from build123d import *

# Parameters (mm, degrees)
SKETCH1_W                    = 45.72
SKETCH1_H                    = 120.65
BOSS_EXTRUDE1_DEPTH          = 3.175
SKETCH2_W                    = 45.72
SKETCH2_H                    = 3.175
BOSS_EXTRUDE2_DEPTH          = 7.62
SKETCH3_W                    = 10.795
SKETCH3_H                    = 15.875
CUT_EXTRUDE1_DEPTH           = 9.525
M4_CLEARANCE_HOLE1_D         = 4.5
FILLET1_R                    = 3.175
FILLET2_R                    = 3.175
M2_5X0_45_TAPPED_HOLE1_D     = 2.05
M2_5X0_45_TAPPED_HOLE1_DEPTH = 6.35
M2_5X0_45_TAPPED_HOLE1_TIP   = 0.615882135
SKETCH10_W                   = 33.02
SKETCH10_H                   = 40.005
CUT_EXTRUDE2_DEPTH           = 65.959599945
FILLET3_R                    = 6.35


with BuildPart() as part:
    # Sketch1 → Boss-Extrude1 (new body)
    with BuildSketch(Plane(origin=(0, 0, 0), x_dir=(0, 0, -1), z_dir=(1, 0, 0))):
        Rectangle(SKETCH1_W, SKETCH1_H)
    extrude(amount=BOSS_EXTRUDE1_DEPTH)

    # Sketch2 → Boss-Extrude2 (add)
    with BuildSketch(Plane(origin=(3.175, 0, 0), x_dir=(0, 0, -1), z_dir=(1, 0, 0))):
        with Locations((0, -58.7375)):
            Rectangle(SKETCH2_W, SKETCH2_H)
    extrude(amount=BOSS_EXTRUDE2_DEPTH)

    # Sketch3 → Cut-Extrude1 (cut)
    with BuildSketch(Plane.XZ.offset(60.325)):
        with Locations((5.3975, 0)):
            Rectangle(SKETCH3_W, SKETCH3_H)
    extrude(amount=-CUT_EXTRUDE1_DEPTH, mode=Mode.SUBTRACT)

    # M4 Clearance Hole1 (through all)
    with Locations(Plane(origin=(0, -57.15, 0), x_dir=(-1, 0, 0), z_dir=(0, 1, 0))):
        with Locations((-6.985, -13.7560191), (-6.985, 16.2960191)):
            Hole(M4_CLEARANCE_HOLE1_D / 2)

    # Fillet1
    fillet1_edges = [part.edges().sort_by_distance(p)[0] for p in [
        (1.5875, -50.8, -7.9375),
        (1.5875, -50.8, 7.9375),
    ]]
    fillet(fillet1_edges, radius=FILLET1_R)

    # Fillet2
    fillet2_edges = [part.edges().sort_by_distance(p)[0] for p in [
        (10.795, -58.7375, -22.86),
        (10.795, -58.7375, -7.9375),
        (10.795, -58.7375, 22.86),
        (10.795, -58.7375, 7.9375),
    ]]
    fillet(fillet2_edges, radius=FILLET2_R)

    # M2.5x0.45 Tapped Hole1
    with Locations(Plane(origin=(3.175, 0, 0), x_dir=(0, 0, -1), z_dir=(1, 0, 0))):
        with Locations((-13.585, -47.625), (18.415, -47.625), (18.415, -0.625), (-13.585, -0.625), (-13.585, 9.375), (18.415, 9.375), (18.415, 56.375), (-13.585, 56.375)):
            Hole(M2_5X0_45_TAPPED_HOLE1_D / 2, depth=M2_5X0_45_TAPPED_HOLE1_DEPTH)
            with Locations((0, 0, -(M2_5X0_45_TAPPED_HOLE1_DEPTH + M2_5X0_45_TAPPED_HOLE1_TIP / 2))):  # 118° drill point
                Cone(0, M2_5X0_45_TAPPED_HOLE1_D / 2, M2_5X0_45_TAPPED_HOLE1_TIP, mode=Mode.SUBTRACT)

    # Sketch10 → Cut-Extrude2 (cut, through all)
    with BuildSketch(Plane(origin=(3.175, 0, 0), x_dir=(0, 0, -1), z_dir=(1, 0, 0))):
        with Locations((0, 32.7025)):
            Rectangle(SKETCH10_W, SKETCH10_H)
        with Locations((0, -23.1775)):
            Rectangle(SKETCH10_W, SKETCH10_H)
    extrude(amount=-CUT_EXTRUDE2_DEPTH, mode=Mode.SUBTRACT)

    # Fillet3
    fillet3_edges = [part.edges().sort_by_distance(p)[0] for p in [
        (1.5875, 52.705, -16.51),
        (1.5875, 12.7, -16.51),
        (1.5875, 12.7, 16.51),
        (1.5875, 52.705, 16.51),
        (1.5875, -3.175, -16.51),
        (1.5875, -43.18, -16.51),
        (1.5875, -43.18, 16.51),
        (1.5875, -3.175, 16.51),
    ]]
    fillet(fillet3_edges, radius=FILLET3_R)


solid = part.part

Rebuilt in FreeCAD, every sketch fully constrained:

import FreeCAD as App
import Part
import Sketcher
from FreeCAD import Vector
Q = App.Units.Quantity


def edges_at(feature, points):
    """Names of the edges that pass closest to the given points."""
    edges = feature.Shape.Edges
    near = lambda p: min(range(len(edges)), key=lambda i: edges[i].distToShape(Part.Vertex(*p))[0])
    return sorted({f"Edge{near(p) + 1}" for p in points})


def add_polygon(sketch, points):
    """Adds a closed chain of lines whose ends are joined by coincident constraints."""
    first, n = sketch.GeometryCount, len(points)
    for a, b in zip(points, points[1:] + points[:1]):
        sketch.addGeometry(Part.LineSegment(App.Vector(*a, 0), App.Vector(*b, 0)), False)
    for i in range(n):
        sketch.addConstraint(Sketcher.Constraint("Coincident", first + i, 2, first + (i + 1) % n, 1))

doc = App.newDocument("Part")
body = doc.addObject("PartDesign::Body", "Body")

# Sketch on YZ plane
sketch1 = doc.addObject("Sketcher::SketchObject", "Sketch")
body.addObject(sketch1)
sketch1.AttachmentSupport = (doc.YZ_Plane, [""])
sketch1.MapMode = "FlatFace"
add_polygon(sketch1, [(60.325, 22.86), (-60.325, 22.86), (-60.325, -22.86), (60.325, -22.86)])  # lines 0-3
sketch1.addConstraint(Sketcher.Constraint("Horizontal", 0))
sketch1.addConstraint(Sketcher.Constraint("Vertical", 1))
sketch1.addConstraint(Sketcher.Constraint("Horizontal", 2))
sketch1.addConstraint(Sketcher.Constraint("Vertical", 3))
sketch1.addConstraint(Sketcher.Constraint("Symmetric", 0, 2, 2, 2, -1, 1))
sketch1.addConstraint(Sketcher.Constraint("DistanceY", 1, 2, 1, 1, Q("1.8 in")))
sketch1.addConstraint(Sketcher.Constraint("DistanceX", 0, 2, 0, 1, Q("4.75 in")))
pad1 = doc.addObject("PartDesign::Pad", "Pad")
body.addObject(pad1)
pad1.Profile = sketch1
pad1.Length = Q("0.125 in")

# Sketch on YZ plane
sketch2 = doc.addObject("Sketcher::SketchObject", "Sketch001")
body.addObject(sketch2)
sketch2.AttachmentSupport = (doc.YZ_Plane, [""])
sketch2.MapMode = "FlatFace"
sketch2.AttachmentOffset = App.Placement(Vector(0, 0, 0.125 * 25.4), App.Rotation())
add_polygon(sketch2, [(-57.15, 22.86), (-60.325, 22.86), (-60.325, -22.86), (-57.15, -22.86)])  # lines 0-3
sketch2.addConstraint(Sketcher.Constraint("Horizontal", 0))
sketch2.addConstraint(Sketcher.Constraint("Vertical", 1))
sketch2.addConstraint(Sketcher.Constraint("Horizontal", 2))
sketch2.addConstraint(Sketcher.Constraint("Vertical", 3))
sketch2.addConstraint(Sketcher.Constraint("DistanceY", 1, 2, 1, 1, Q("1.8 in")))
sketch2.addConstraint(Sketcher.Constraint("DistanceY", -1, 1, 0, 2, Q("0.9 in")))
sketch2.addConstraint(Sketcher.Constraint("DistanceX", 0, 2, 0, 1, Q("0.125 in")))
sketch2.addConstraint(Sketcher.Constraint("DistanceX", 2, 2, -1, 1, Q("2.25 in")))
pad2 = doc.addObject("PartDesign::Pad", "Pad001")
body.addObject(pad2)
pad2.Profile = sketch2
pad2.Length = Q("0.3 in")

# Sketch on XZ plane
sketch3 = doc.addObject("Sketcher::SketchObject", "Sketch002")
body.addObject(sketch3)
sketch3.AttachmentSupport = (doc.XZ_Plane, [""])
sketch3.MapMode = "FlatFace"
sketch3.AttachmentOffset = App.Placement(Vector(0, 0, 2.375 * 25.4), App.Rotation())
add_polygon(sketch3, [(0, 7.9375), (0, -7.9375), (10.795, -7.9375), (10.795, 7.9375)])  # lines 0-3
sketch3.addConstraint(Sketcher.Constraint("Vertical", 0))
sketch3.addConstraint(Sketcher.Constraint("Horizontal", 1))
sketch3.addConstraint(Sketcher.Constraint("Vertical", 2))
sketch3.addConstraint(Sketcher.Constraint("Horizontal", 3))
sketch3.addConstraint(Sketcher.Constraint("Symmetric", 0, 2, 3, 2, -1, 1))
sketch3.addConstraint(Sketcher.Constraint("DistanceX", 1, 1, 1, 2, Q("0.425 in")))
sketch3.addConstraint(Sketcher.Constraint("DistanceY", 0, 2, 0, 1, Q("0.625 in")))
pocket1 = doc.addObject("PartDesign::Pocket", "Pocket")
body.addObject(pocket1)
pocket1.Profile = sketch3
pocket1.Length = Q("0.375 in")

# Sketch on XZ plane
sketch4 = doc.addObject("Sketcher::SketchObject", "Sketch003")
body.addObject(sketch4)
sketch4.AttachmentSupport = (doc.XZ_Plane, [""])
sketch4.MapMode = "FlatFace"
sketch4.AttachmentOffset = App.Placement(Vector(0, 0, 2.25 * 25.4), App.Rotation())
sketch4.addGeometry(Part.Circle(Vector(6.985, -13.756019, 0), Vector(0, 0, 1), 2.25), False)
sketch4.addGeometry(Part.Circle(Vector(6.985, 16.296019, 0), Vector(0, 0, 1), 2.25), False)
sketch4.addConstraint(Sketcher.Constraint("Equal", 0, 1))
sketch4.addConstraint(Sketcher.Constraint("Vertical", 0, 3, 1, 3))
sketch4.addConstraint(Sketcher.Constraint("Diameter", 0, 4.5))
sketch4.addConstraint(Sketcher.Constraint("DistanceX", -1, 1, 0, 3, Q("0.275 in")))
sketch4.addConstraint(Sketcher.Constraint("DistanceY", 0, 3, -1, 1, 13.756019))
sketch4.addConstraint(Sketcher.Constraint("DistanceY", -1, 1, 1, 3, 16.296019))
doc.recompute()
hole = doc.addObject("PartDesign::Hole", "Hole")
body.addObject(hole)
hole.Profile = sketch4
hole.ThreadType = "None"
hole.Diameter = 4.5
hole.DepthType = "ThroughAll"
hole.Reversed = True
doc.recompute()

fillet = doc.addObject("PartDesign::Fillet", "Fillet")
body.addObject(fillet)
fillet.Base = (hole, edges_at(hole, [(1.587, -50.8, -7.938), (1.587, -50.8, 7.938)]))
fillet.Radius = Q("0.125 in")
doc.recompute()

fillet2 = doc.addObject("PartDesign::Fillet", "Fillet001")
body.addObject(fillet2)
fillet2.Base = (fillet, edges_at(fillet, [
    (10.795, -58.737, -22.86),
    (10.795, -58.737, -7.938),
    (10.795, -58.737, 22.86),
    (10.795, -58.737, 7.938),
]))
fillet2.Radius = Q("0.125 in")

# Sketch on YZ plane
sketch5 = doc.addObject("Sketcher::SketchObject", "Sketch004")
body.addObject(sketch5)
sketch5.AttachmentSupport = (doc.YZ_Plane, [""])
sketch5.MapMode = "FlatFace"
sketch5.AttachmentOffset = App.Placement(Vector(0, 0, 0.125 * 25.4), App.Rotation())
sketch5.addGeometry(Part.Circle(Vector(-47.625, 13.585, 0), Vector(0, 0, 1), 1.025), False)
sketch5.addGeometry(Part.Circle(Vector(-47.625, -18.415, 0), Vector(0, 0, 1), 1.025), False)
sketch5.addGeometry(Part.Circle(Vector(-0.625, -18.415, 0), Vector(0, 0, 1), 1.025), False)
sketch5.addGeometry(Part.Circle(Vector(-0.625, 13.585, 0), Vector(0, 0, 1), 1.025), False)
sketch5.addGeometry(Part.Circle(Vector(9.375, 13.585, 0), Vector(0, 0, 1), 1.025), False)
sketch5.addGeometry(Part.Circle(Vector(9.375, -18.415, 0), Vector(0, 0, 1), 1.025), False)
sketch5.addGeometry(Part.Circle(Vector(56.375, -18.415, 0), Vector(0, 0, 1), 1.025), False)
sketch5.addGeometry(Part.Circle(Vector(56.375, 13.585, 0), Vector(0, 0, 1), 1.025), False)
sketch5.addConstraint(Sketcher.Constraint("Equal", 0, 1))
sketch5.addConstraint(Sketcher.Constraint("Equal", 1, 2))
sketch5.addConstraint(Sketcher.Constraint("Equal", 2, 3))
sketch5.addConstraint(Sketcher.Constraint("Equal", 3, 4))
sketch5.addConstraint(Sketcher.Constraint("Equal", 4, 5))
sketch5.addConstraint(Sketcher.Constraint("Equal", 5, 6))
sketch5.addConstraint(Sketcher.Constraint("Equal", 6, 7))
sketch5.addConstraint(Sketcher.Constraint("Horizontal", 1, 3, 2, 3))
sketch5.addConstraint(Sketcher.Constraint("Horizontal", 0, 3, 3, 3))
sketch5.addConstraint(Sketcher.Constraint("Horizontal", 3, 3, 4, 3))
sketch5.addConstraint(Sketcher.Constraint("Horizontal", 2, 3, 5, 3))
sketch5.addConstraint(Sketcher.Constraint("Horizontal", 5, 3, 6, 3))
sketch5.addConstraint(Sketcher.Constraint("Horizontal", 4, 3, 7, 3))
sketch5.addConstraint(Sketcher.Constraint("Vertical", 0, 3, 1, 3))
sketch5.addConstraint(Sketcher.Constraint("Vertical", 2, 3, 3, 3))
sketch5.addConstraint(Sketcher.Constraint("Vertical", 4, 3, 5, 3))
sketch5.addConstraint(Sketcher.Constraint("Vertical", 6, 3, 7, 3))
sketch5.addConstraint(Sketcher.Constraint("Diameter", 0, 2.05))
sketch5.addConstraint(Sketcher.Constraint("DistanceX", 0, 3, -1, 1, Q("1.875 in")))
sketch5.addConstraint(Sketcher.Constraint("DistanceY", 1, 3, -1, 1, Q("0.725 in")))
sketch5.addConstraint(Sketcher.Constraint("DistanceY", -1, 1, 0, 3, 13.585))
sketch5.addConstraint(Sketcher.Constraint("DistanceX", 2, 3, -1, 1, 0.625))
sketch5.addConstraint(Sketcher.Constraint("DistanceX", -1, 1, 4, 3, 9.375))
sketch5.addConstraint(Sketcher.Constraint("DistanceX", -1, 1, 6, 3, 56.375))
doc.recompute()
hole2 = doc.addObject("PartDesign::Hole", "Hole001")
body.addObject(hole2)
hole2.Profile = sketch5
hole2.ThreadType = "None"
hole2.Diameter = 2.05
hole2.DepthType = "Dimension"
hole2.Depth = Q("0.25 in")
hole2.DrillPoint = "Angled"
hole2.DrillPointAngle = 118

# Sketch on YZ plane
sketch6 = doc.addObject("Sketcher::SketchObject", "Sketch005")
body.addObject(sketch6)
sketch6.AttachmentSupport = (doc.YZ_Plane, [""])
sketch6.MapMode = "FlatFace"
sketch6.AttachmentOffset = App.Placement(Vector(0, 0, 0.125 * 25.4), App.Rotation())
add_polygon(sketch6, [(52.705, 16.51), (12.7, 16.51), (12.7, -16.51), (52.705, -16.51)])  # lines 0-3
add_polygon(sketch6, [(-3.175, 16.51), (-43.18, 16.51), (-43.18, -16.51), (-3.175, -16.51)])  # lines 4-7
sketch6.addConstraint(Sketcher.Constraint("Horizontal", 0))
sketch6.addConstraint(Sketcher.Constraint("Vertical", 1))
sketch6.addConstraint(Sketcher.Constraint("Horizontal", 2))
sketch6.addConstraint(Sketcher.Constraint("Vertical", 3))
sketch6.addConstraint(Sketcher.Constraint("Horizontal", 4))
sketch6.addConstraint(Sketcher.Constraint("Vertical", 5))
sketch6.addConstraint(Sketcher.Constraint("Horizontal", 6))
sketch6.addConstraint(Sketcher.Constraint("Vertical", 7))
sketch6.addConstraint(Sketcher.Constraint("Horizontal", 3, 2, 4, 2))
sketch6.addConstraint(Sketcher.Constraint("Horizontal", 2, 2, 5, 2))
sketch6.addConstraint(Sketcher.Constraint("Equal", 2, 4))
sketch6.addConstraint(Sketcher.Constraint("DistanceY", 1, 2, 1, 1, Q("1.3 in")))
sketch6.addConstraint(Sketcher.Constraint("DistanceX", -1, 1, 0, 2, Q("0.5 in")))
sketch6.addConstraint(Sketcher.Constraint("DistanceX", 4, 2, -1, 1, Q("1.7 in")))
sketch6.addConstraint(Sketcher.Constraint("DistanceX", 0, 2, 0, 1, Q("1.575 in")))
sketch6.addConstraint(Sketcher.Constraint("DistanceY", -1, 1, 0, 2, Q("0.65 in")))
pocket2 = doc.addObject("PartDesign::Pocket", "Pocket001")
body.addObject(pocket2)
pocket2.Profile = sketch6
pocket2.Type = "ThroughAll"
doc.recompute()

fillet3 = doc.addObject("PartDesign::Fillet", "Fillet002")
body.addObject(fillet3)
fillet3.Base = (pocket2, edges_at(pocket2, [
    (1.587, 52.705, -16.51),
    (1.587, 12.7, -16.51),
    (1.587, 12.7, 16.51),
    (1.587, 52.705, 16.51),
    (1.587, -3.175, -16.51),
    (1.587, -43.18, -16.51),
    (1.587, -43.18, 16.51),
    (1.587, -3.175, 16.51),
]))
fillet3.Radius = Q("0.25 in")

doc.recompute()
